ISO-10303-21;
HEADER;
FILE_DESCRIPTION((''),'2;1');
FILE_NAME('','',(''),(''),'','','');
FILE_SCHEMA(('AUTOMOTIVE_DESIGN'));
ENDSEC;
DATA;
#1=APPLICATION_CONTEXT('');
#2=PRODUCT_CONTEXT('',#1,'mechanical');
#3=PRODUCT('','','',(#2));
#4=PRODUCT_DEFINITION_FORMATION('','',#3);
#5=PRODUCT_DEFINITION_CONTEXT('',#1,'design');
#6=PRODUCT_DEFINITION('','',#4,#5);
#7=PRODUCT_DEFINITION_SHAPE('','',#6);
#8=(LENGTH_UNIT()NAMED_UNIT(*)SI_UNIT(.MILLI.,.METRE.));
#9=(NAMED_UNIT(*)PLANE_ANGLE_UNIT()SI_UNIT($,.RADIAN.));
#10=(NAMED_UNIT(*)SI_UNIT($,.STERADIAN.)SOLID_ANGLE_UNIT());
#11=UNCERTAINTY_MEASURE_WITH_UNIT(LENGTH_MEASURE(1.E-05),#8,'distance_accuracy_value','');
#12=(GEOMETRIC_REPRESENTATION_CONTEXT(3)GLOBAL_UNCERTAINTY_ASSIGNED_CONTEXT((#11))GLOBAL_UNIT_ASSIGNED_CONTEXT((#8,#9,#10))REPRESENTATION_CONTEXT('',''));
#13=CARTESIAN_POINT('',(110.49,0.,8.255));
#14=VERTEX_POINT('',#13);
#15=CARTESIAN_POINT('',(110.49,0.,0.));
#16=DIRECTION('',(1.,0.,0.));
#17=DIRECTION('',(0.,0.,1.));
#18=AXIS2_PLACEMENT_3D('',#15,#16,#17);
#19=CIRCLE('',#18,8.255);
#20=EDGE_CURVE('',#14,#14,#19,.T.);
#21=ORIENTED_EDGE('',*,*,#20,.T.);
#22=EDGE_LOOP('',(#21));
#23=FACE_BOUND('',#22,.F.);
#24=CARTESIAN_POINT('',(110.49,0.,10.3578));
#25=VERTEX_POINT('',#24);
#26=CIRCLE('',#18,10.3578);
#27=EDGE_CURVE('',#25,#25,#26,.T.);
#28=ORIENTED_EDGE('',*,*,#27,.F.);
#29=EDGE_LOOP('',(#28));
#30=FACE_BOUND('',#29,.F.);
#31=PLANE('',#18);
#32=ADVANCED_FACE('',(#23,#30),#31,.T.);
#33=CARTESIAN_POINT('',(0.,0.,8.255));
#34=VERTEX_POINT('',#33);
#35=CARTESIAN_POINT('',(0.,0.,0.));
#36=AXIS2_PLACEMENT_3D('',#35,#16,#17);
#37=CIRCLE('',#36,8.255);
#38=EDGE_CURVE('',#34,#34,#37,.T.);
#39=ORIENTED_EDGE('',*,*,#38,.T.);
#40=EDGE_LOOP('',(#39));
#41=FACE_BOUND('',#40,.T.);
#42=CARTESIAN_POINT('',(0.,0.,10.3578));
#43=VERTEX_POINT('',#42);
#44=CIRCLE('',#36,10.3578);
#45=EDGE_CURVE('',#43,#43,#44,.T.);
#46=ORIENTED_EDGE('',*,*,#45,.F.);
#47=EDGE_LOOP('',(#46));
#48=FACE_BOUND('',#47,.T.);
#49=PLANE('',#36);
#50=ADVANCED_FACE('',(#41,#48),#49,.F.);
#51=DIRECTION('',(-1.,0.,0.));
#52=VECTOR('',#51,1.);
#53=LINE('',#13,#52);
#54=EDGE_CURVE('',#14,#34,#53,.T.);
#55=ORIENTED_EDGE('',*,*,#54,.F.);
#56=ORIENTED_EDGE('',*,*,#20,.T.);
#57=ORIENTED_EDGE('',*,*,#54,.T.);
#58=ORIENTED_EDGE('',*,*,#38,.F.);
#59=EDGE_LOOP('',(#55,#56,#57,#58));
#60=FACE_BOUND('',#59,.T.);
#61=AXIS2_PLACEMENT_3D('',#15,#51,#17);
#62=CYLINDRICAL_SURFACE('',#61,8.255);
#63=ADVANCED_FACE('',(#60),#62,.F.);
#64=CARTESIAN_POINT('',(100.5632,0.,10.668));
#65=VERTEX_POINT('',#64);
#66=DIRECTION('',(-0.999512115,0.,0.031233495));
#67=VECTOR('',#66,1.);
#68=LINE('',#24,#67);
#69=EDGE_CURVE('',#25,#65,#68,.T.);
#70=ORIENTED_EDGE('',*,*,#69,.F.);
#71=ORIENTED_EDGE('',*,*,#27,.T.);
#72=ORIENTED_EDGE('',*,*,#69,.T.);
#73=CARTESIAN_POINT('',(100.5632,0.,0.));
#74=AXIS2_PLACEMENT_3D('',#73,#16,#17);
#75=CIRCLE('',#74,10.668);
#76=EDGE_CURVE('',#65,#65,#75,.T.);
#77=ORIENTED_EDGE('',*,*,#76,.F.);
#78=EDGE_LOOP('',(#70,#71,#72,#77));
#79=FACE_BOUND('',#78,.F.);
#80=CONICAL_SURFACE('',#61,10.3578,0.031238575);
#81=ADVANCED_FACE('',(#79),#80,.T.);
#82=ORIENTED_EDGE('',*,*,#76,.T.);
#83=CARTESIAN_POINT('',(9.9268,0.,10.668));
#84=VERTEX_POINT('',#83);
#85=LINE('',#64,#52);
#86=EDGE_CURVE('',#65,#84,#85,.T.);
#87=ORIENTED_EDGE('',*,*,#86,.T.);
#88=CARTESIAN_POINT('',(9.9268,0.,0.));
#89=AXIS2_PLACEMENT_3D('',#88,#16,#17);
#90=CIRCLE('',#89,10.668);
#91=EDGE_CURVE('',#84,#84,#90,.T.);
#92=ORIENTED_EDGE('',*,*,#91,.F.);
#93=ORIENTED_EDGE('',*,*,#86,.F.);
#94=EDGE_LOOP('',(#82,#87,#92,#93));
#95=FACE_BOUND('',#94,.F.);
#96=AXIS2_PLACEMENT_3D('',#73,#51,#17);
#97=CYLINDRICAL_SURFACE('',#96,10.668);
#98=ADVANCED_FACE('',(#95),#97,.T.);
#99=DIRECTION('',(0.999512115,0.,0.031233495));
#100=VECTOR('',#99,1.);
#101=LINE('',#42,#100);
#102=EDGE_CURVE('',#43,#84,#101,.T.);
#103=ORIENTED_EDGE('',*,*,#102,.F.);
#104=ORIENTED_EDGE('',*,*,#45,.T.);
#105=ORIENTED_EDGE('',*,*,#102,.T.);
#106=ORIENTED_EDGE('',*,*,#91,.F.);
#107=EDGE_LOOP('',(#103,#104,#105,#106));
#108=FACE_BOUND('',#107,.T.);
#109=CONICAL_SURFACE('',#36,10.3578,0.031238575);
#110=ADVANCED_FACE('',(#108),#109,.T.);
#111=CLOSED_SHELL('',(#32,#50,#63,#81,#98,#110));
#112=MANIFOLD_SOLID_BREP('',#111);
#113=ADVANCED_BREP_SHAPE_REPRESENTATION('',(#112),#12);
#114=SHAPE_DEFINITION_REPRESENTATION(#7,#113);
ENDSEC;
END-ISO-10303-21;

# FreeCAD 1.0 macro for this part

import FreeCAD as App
import Part
import Sketcher
from FreeCAD import Vector
Q = App.Units.Quantity

doc = App.newDocument("Part")
body = doc.addObject("PartDesign::Body", "Body")

# Sketch on XZ plane
sketch1 = body.newObject("Sketcher::SketchObject", "Sketch")
sketch1.AttachmentSupport = (doc.getObject("XZ_Plane"), [""])
sketch1.MapMode = "FlatFace"
sketch1.addGeometry(Part.LineSegment(Vector(110.49, 10.3578, 0), Vector(110.49, 8.255, 0)), False)
sketch1.addGeometry(Part.LineSegment(Vector(110.49, 8.255, 0), Vector(0, 8.255, 0)), False)
sketch1.addGeometry(Part.LineSegment(Vector(0, 8.255, 0), Vector(0, 10.3578, 0)), False)
sketch1.addGeometry(Part.LineSegment(Vector(0, 10.3578, 0), Vector(9.9268, 10.668, 0)), False)
sketch1.addGeometry(Part.LineSegment(Vector(9.9268, 10.668, 0), Vector(100.5632, 10.668, 0)), False)
sketch1.addGeometry(Part.LineSegment(Vector(100.5632, 10.668, 0), Vector(110.49, 10.3578, 0)), False)
sketch1.addConstraint(Sketcher.Constraint("Coincident", 0, 2, 1, 1))
sketch1.addConstraint(Sketcher.Constraint("Coincident", 1, 2, 2, 1))
sketch1.addConstraint(Sketcher.Constraint("Coincident", 2, 2, 3, 1))
sketch1.addConstraint(Sketcher.Constraint("Coincident", 3, 2, 4, 1))
sketch1.addConstraint(Sketcher.Constraint("Coincident", 4, 2, 5, 1))
sketch1.addConstraint(Sketcher.Constraint("Coincident", 5, 2, 0, 1))
sketch1.addConstraint(Sketcher.Constraint("Vertical", 0))
sketch1.addConstraint(Sketcher.Constraint("Horizontal", 1))
sketch1.addConstraint(Sketcher.Constraint("Vertical", 2))
sketch1.addConstraint(Sketcher.Constraint("Horizontal", 4))
sketch1.addConstraint(Sketcher.Constraint("PointOnObject", 1, 2, -2))
sketch1.addConstraint(Sketcher.Constraint("Horizontal", 2, 2, 5, 2))
sketch1.addConstraint(Sketcher.Constraint("Equal", 3, 5))
sketch1.addConstraint(Sketcher.Constraint("DistanceX", 1, 2, 1, 1, Q("4.35 in")))
sketch1.addConstraint(Sketcher.Constraint("Angle", 3, Q("1.7898 deg")))
sketch1.addConstraint(Sketcher.Constraint("DistanceY", -1, 1, 3, 2, Q("0.42 in")))
sketch1.addConstraint(Sketcher.Constraint("Distance", 3, Q("0.391 in")))
sketch1.addConstraint(Sketcher.Constraint("DistanceY", -1, 1, 0, 2, Q("0.325 in")))
revolution = body.newObject("PartDesign::Revolution", "Revolution")
revolution.Profile = sketch1
revolution.ReferenceAxis = (sketch1, ["H_Axis"])
revolution.Angle = 360

doc.recompute()
